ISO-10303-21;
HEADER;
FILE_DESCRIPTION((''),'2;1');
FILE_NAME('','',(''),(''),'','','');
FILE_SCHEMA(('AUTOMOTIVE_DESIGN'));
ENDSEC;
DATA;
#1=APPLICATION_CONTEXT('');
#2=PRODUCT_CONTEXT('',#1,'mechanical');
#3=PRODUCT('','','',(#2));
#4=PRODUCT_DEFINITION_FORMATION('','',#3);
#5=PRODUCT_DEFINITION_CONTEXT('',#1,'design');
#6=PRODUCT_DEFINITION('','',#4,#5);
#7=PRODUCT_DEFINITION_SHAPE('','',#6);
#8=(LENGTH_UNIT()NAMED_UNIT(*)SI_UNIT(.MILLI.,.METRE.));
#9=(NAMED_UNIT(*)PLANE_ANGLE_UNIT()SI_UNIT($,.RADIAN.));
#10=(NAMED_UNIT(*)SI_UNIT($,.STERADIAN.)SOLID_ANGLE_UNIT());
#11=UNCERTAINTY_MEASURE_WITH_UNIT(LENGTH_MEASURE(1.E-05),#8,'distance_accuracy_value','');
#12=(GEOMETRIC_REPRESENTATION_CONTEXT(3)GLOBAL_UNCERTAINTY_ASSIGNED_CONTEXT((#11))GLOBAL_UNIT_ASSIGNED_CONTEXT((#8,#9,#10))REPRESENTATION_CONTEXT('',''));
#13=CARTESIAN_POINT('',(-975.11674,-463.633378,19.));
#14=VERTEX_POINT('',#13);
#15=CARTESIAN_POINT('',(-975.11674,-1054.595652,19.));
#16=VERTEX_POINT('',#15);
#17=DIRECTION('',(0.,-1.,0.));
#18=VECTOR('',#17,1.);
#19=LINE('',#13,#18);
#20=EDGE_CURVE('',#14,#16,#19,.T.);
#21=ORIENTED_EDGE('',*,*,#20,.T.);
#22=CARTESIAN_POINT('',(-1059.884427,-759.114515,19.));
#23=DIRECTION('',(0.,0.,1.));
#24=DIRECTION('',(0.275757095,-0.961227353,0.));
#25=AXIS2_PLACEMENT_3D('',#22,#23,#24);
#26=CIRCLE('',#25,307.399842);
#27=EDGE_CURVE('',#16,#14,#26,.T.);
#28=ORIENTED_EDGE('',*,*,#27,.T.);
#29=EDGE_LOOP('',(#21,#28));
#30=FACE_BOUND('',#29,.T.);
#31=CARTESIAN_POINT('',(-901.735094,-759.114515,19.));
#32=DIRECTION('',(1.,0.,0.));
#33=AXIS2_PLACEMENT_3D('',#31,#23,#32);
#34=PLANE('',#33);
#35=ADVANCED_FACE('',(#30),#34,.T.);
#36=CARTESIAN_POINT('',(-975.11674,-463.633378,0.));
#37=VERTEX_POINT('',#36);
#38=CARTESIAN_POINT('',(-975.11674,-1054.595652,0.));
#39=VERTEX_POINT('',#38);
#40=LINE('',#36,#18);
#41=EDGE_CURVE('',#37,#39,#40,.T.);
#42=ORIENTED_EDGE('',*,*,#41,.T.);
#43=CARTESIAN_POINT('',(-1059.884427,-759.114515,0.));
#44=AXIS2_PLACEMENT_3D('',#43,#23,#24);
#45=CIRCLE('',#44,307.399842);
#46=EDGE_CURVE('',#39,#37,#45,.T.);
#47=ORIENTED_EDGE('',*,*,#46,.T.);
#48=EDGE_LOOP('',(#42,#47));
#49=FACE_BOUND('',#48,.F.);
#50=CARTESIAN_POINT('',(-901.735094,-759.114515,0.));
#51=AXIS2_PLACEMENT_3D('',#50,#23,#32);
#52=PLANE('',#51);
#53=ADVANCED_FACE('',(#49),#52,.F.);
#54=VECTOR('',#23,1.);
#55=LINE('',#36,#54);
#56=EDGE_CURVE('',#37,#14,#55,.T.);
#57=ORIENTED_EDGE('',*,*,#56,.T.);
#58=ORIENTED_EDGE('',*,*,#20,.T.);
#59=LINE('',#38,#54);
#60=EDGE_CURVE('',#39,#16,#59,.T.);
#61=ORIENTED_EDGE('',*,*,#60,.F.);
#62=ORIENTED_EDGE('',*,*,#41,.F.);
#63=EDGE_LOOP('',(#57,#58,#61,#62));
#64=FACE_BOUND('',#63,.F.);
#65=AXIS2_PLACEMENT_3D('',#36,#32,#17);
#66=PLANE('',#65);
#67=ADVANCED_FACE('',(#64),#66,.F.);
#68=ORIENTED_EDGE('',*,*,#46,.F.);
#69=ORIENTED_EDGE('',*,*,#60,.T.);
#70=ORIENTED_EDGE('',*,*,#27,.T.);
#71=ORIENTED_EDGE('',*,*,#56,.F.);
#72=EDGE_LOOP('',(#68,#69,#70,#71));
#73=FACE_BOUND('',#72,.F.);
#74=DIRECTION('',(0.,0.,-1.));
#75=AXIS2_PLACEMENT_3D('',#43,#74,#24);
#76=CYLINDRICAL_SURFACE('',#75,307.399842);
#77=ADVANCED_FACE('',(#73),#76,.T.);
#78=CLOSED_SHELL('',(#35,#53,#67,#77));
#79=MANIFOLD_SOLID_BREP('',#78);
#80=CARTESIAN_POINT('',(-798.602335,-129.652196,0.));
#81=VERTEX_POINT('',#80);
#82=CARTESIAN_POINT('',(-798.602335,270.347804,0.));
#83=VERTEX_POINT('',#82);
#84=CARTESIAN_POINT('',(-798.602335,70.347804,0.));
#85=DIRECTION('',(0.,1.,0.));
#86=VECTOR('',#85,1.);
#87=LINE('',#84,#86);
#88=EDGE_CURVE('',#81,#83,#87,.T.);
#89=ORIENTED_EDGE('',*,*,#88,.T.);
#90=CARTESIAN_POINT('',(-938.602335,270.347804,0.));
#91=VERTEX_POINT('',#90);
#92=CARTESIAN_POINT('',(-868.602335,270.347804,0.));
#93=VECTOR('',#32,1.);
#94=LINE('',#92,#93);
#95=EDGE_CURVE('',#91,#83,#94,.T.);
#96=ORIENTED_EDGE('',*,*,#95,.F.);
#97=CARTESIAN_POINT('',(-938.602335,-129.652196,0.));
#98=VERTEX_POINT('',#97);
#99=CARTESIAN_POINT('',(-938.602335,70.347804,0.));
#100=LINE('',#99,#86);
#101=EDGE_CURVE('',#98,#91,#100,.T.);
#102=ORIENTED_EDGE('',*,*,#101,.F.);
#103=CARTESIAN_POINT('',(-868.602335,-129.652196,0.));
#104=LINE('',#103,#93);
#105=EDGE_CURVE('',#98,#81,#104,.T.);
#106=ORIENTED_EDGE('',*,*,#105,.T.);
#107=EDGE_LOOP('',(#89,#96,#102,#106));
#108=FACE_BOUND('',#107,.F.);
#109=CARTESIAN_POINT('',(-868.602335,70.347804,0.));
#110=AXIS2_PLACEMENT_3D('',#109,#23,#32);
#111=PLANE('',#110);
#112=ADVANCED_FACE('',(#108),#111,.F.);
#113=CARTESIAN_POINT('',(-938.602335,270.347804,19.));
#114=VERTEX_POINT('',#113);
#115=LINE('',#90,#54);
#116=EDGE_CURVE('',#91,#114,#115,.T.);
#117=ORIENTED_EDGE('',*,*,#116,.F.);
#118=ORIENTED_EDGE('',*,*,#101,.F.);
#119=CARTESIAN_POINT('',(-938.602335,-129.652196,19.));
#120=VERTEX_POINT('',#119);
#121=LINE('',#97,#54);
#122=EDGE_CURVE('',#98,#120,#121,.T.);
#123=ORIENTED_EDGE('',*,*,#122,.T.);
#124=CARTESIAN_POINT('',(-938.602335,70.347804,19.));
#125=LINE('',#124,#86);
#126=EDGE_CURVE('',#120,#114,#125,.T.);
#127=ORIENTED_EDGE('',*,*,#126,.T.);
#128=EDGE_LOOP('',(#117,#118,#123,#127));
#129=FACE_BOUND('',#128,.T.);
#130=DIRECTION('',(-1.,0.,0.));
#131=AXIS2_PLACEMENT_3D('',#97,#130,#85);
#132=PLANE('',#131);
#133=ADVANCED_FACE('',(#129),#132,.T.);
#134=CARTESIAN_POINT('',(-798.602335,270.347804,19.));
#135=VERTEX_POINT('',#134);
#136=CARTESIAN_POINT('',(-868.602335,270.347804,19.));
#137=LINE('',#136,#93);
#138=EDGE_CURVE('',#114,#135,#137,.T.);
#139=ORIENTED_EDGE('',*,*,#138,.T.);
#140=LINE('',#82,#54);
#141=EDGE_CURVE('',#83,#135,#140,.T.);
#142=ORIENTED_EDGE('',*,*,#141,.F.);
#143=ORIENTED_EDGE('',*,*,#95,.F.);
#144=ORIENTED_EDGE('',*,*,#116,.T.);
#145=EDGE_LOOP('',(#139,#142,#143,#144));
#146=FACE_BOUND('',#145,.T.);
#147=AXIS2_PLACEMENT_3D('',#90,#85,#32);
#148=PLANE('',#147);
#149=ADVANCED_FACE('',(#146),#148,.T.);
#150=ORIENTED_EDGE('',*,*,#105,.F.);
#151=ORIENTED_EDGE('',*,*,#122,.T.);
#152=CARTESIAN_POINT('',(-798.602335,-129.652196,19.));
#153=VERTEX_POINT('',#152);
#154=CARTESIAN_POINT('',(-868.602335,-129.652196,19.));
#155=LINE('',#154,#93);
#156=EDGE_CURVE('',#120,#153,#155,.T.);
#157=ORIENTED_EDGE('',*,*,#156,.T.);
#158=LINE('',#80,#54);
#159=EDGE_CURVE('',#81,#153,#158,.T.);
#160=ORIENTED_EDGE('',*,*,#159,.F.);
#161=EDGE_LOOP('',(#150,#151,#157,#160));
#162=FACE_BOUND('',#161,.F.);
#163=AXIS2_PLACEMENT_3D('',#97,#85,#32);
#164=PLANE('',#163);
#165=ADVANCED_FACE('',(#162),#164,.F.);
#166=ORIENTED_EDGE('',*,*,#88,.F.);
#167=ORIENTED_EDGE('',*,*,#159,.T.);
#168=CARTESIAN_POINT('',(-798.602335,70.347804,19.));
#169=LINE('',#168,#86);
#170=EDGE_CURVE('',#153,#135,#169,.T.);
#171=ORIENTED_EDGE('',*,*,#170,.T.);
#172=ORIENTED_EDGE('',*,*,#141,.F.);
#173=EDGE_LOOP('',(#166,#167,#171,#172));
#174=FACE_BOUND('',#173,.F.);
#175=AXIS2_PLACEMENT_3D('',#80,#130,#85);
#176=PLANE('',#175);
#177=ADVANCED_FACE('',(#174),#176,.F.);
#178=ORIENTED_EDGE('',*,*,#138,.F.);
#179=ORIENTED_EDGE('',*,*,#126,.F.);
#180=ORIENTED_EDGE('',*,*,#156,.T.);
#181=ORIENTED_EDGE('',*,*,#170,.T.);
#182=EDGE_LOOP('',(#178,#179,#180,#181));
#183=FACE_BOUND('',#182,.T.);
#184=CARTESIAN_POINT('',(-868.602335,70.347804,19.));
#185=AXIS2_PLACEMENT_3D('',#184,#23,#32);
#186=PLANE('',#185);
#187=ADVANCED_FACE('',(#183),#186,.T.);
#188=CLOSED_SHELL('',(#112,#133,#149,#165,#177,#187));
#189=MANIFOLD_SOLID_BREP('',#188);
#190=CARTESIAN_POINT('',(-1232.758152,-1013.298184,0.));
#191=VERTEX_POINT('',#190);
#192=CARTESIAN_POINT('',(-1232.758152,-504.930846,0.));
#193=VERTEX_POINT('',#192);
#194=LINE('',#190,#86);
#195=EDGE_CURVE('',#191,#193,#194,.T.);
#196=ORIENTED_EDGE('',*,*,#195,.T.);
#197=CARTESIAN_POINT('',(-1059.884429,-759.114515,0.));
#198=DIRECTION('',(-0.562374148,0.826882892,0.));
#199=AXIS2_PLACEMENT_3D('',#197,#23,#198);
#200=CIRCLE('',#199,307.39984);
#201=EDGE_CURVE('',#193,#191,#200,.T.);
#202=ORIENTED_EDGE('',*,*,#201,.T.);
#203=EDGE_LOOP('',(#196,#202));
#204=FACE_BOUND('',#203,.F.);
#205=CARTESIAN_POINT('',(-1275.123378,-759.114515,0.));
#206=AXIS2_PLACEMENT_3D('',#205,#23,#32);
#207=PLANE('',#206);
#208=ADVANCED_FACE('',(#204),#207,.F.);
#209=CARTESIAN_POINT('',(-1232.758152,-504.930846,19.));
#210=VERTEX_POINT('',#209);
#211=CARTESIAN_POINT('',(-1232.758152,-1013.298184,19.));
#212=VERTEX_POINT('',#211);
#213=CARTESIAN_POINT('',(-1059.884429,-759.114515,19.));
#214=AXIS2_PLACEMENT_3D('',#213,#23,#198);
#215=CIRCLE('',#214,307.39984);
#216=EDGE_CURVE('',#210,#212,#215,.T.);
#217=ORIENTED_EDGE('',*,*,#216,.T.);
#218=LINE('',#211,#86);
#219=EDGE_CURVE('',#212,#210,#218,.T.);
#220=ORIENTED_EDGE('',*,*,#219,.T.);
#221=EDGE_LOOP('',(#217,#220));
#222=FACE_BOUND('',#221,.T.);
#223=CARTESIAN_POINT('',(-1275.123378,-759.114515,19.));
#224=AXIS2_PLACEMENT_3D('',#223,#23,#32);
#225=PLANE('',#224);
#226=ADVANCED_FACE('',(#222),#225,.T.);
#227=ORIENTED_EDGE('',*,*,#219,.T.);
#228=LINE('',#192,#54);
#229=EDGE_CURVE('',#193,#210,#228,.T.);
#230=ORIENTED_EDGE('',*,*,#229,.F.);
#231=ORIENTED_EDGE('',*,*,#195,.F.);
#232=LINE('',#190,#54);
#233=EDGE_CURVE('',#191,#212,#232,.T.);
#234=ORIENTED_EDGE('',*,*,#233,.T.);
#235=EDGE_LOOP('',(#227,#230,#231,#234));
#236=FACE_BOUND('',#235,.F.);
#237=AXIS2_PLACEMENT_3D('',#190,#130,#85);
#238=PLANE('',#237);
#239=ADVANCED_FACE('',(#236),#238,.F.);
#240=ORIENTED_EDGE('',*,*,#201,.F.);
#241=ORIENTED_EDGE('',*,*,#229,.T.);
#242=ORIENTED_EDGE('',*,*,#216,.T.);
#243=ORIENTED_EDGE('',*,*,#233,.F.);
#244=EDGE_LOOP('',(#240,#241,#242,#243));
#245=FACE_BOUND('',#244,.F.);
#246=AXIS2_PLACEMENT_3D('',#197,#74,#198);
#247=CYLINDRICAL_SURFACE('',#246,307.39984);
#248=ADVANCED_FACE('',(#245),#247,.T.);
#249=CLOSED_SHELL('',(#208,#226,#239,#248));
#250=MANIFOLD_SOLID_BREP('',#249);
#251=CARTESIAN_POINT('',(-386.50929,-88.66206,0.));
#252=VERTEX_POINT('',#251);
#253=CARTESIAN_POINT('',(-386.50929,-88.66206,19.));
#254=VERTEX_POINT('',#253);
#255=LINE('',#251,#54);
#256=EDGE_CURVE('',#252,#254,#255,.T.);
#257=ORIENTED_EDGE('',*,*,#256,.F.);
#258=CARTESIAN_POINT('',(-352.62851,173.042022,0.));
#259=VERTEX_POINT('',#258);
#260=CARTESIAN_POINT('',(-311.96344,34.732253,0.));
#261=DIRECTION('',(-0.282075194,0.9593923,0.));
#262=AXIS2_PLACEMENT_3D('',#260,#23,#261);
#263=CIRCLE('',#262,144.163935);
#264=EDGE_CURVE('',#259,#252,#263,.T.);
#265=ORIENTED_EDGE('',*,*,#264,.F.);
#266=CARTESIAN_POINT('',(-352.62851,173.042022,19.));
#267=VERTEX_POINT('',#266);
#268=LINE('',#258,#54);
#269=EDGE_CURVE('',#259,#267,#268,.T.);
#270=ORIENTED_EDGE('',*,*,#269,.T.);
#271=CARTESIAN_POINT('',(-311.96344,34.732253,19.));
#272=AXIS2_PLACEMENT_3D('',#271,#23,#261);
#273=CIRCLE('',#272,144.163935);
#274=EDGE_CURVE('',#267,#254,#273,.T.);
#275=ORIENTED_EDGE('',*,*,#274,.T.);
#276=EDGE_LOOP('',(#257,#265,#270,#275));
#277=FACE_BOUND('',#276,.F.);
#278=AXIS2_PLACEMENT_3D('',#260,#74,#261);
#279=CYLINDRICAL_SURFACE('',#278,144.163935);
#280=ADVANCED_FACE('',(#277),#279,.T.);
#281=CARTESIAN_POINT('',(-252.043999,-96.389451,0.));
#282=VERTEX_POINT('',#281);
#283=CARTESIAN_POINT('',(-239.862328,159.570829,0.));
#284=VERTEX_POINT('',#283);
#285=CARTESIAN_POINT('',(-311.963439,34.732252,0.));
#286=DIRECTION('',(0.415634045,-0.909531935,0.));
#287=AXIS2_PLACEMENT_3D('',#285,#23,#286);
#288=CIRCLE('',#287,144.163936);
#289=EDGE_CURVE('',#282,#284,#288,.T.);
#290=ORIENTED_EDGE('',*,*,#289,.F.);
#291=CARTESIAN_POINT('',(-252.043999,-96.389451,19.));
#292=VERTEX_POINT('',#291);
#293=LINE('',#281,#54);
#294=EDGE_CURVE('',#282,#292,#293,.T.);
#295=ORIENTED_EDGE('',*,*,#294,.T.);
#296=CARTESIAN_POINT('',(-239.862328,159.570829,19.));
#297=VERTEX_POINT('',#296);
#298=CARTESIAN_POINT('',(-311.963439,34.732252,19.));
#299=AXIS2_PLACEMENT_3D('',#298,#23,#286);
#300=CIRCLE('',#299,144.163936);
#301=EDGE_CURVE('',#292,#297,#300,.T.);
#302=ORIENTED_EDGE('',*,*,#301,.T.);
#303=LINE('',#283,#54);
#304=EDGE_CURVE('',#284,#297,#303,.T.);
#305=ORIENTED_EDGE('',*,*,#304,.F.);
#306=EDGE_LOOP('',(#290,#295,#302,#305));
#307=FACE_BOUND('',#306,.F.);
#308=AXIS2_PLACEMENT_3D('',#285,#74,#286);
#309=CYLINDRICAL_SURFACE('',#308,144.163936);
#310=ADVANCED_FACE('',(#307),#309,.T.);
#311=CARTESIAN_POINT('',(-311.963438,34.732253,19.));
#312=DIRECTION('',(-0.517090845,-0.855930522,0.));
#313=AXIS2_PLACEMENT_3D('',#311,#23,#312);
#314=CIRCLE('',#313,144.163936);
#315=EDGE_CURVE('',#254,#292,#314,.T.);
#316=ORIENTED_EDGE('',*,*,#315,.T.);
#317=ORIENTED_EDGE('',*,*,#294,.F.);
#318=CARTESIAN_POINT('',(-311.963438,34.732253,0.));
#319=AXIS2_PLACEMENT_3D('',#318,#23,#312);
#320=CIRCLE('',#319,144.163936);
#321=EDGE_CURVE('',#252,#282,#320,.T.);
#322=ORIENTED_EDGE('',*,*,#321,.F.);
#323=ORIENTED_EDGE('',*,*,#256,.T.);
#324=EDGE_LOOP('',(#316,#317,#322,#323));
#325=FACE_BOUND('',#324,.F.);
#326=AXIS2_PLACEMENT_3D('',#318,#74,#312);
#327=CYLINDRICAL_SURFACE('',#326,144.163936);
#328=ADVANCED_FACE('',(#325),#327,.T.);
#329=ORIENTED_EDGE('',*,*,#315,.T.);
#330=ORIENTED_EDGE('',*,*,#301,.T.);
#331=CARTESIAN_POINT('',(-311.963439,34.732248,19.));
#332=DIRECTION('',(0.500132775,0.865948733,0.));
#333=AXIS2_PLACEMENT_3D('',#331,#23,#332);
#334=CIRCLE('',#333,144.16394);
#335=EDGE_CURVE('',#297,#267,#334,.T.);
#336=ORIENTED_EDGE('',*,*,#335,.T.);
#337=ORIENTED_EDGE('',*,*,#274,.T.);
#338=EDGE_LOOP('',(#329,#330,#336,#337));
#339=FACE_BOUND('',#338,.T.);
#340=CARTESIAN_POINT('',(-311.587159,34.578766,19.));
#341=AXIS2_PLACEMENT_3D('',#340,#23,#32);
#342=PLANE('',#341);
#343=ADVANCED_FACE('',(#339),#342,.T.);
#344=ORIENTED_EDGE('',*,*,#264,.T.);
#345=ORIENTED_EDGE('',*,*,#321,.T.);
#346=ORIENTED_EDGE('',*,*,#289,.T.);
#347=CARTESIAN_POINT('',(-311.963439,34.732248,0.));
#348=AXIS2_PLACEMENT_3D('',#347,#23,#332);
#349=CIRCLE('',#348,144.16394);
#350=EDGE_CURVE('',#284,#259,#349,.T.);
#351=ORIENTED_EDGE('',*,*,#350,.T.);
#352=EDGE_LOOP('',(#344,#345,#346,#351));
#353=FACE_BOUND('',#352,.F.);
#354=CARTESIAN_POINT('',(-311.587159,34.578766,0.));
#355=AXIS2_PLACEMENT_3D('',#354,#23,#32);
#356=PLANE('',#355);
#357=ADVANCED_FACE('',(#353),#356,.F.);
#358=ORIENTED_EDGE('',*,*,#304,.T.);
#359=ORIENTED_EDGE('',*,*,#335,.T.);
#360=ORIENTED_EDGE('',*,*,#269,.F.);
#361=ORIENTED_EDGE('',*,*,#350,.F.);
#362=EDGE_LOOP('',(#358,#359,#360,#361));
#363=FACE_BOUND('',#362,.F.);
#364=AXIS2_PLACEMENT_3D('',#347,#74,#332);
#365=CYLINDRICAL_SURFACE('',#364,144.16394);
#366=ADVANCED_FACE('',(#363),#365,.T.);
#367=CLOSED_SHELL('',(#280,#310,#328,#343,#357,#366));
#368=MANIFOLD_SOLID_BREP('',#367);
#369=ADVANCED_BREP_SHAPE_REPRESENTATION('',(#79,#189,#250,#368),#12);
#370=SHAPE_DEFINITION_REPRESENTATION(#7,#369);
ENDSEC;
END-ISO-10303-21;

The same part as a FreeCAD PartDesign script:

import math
import FreeCAD as App
import Part
import Sketcher
Q = App.Units.Quantity

doc = App.newDocument("Part")
body = doc.addObject("PartDesign::Body", "Body")

sketch1 = doc.addObject("Sketcher::SketchObject", "Sketch")
body.addObject(sketch1)
sketch1.AttachmentSupport = (doc.XY_Plane, [""])
sketch1.MapMode = "FlatFace"
sketch1.addGeometry(Part.ArcOfCircle(Part.Circle(App.Vector(-311.963439, 34.732252, 0), App.Vector(0, 0, 1), 144.163936), math.radians(-65.440748), math.radians(59.991215)), False)
sketch1.addGeometry(Part.ArcOfCircle(Part.Circle(App.Vector(-311.963439, 34.732248, 0), App.Vector(0, 0, 1), 144.16394), math.radians(59.991215), math.radians(106.384098)), False)
sketch1.addGeometry(Part.ArcOfCircle(Part.Circle(App.Vector(-311.96344, 34.732253, 0), App.Vector(0, 0, 1), 144.163935), math.radians(106.384098), math.radians(238.862688)), False)
sketch1.addGeometry(Part.ArcOfCircle(Part.Circle(App.Vector(-311.963438, 34.732253, 0), App.Vector(0, 0, 1), 144.163936), math.radians(-121.137313), math.radians(-65.440749)), False)
sketch1.addConstraint(Sketcher.Constraint("Tangent", 0, 2, 1, 1))
sketch1.addConstraint(Sketcher.Constraint("Tangent", 1, 2, 2, 1))
sketch1.addConstraint(Sketcher.Constraint("Tangent", 2, 2, 3, 1))
sketch1.addConstraint(Sketcher.Constraint("Tangent", 3, 2, 0, 1))
sketch1.addConstraint(Sketcher.Constraint("Equal", 0, 2))
sketch1.addConstraint(Sketcher.Constraint("Radius", 1, Q("144.16394 mm")))
sketch1.addConstraint(Sketcher.Constraint("DistanceX", 3, 2, -1, 1, Q("252.043999 mm")))
sketch1.addConstraint(Sketcher.Constraint("DistanceY", 3, 2, 1, 3, Q("131.121699 mm")))
sketch1.addConstraint(Sketcher.Constraint("DistanceX", 0, 2, -1, 1, Q("239.862328 mm")))
sketch1.addConstraint(Sketcher.Constraint("DistanceY", -1, 1, 0, 2, Q("159.570829 mm")))
sketch1.addConstraint(Sketcher.Constraint("DistanceX", 1, 2, -1, 1, Q("352.62851 mm")))
sketch1.addConstraint(Sketcher.Constraint("DistanceX", 2, 2, -1, 1, Q("386.50929 mm")))
pad1 = doc.addObject("PartDesign::Pad", "Pad")
body.addObject(pad1)
pad1.Profile = sketch1
pad1.Length = 19
body2 = doc.addObject("PartDesign::Body", "Body001")
body2.AllowCompound = True

sketch2 = doc.addObject("Sketcher::SketchObject", "Sketch001")
body2.addObject(sketch2)
sketch2.AttachmentSupport = (doc.getObject("XY_Plane001"), [""])
sketch2.MapMode = "FlatFace"
sketch2.addGeometry(Part.LineSegment(App.Vector(-1233, -1013, 0), App.Vector(-1233, -505, 0)), False)
sketch2.addGeometry(Part.ArcOfCircle(Part.Circle(App.Vector(-1060, -759, 0), App.Vector(0, 0, 1), 307), math.radians(124), math.radians(236)), False)
sketch2.addGeometry(Part.ArcOfCircle(Part.Circle(App.Vector(-1060, -759, 0), App.Vector(0, 0, 1), 307), math.radians(-74), math.radians(74)), False)
sketch2.addGeometry(Part.LineSegment(App.Vector(-975, -464, 0), App.Vector(-975, -1055, 0)), False)
sketch2.addConstraint(Sketcher.Constraint("Coincident", 0, 1, 1, 2))
sketch2.addConstraint(Sketcher.Constraint("Coincident", 1, 1, 0, 2))
sketch2.addConstraint(Sketcher.Constraint("Coincident", 2, 1, 3, 2))
sketch2.addConstraint(Sketcher.Constraint("Coincident", 3, 1, 2, 2))
sketch2.addConstraint(Sketcher.Constraint("Vertical", 0))
sketch2.addConstraint(Sketcher.Constraint("Vertical", 3))
sketch2.addConstraint(Sketcher.Constraint("Coincident", 2, 3, 1, 3))
sketch2.addConstraint(Sketcher.Constraint("Radius", 1, Q("307.39984 mm")))
sketch2.addConstraint(Sketcher.Constraint("Radius", 2, Q("307.399842 mm")))
sketch2.addConstraint(Sketcher.Constraint("DistanceY", 0, 1, 0, 2, Q("508.367338 mm")))
sketch2.addConstraint(Sketcher.Constraint("DistanceY", 3, 2, 3, 1, Q("590.962274 mm")))
sketch2.addConstraint(Sketcher.Constraint("DistanceX", 1, 3, -1, 1, Q("1059.884429 mm")))
sketch2.addConstraint(Sketcher.Constraint("DistanceY", 2, 1, -1, 1, Q("1054.595652 mm")))
pad2 = doc.addObject("PartDesign::Pad", "Pad001")
body2.addObject(pad2)
pad2.Profile = sketch2
pad2.Length = 19
body3 = doc.addObject("PartDesign::Body", "Body002")

sketch3 = doc.addObject("Sketcher::SketchObject", "Sketch002")
body3.addObject(sketch3)
sketch3.AttachmentSupport = (doc.getObject("XY_Plane002"), [""])
sketch3.MapMode = "FlatFace"
sketch3.addGeometry(Part.LineSegment(App.Vector(-939, 270, 0), App.Vector(-939, -130, 0)), False)
sketch3.addGeometry(Part.LineSegment(App.Vector(-939, -130, 0), App.Vector(-799, -130, 0)), False)
sketch3.addGeometry(Part.LineSegment(App.Vector(-799, -130, 0), App.Vector(-799, 270, 0)), False)
sketch3.addGeometry(Part.LineSegment(App.Vector(-799, 270, 0), App.Vector(-939, 270, 0)), False)
sketch3.addConstraint(Sketcher.Constraint("Coincident", 0, 2, 1, 1))
sketch3.addConstraint(Sketcher.Constraint("Coincident", 1, 2, 2, 1))
sketch3.addConstraint(Sketcher.Constraint("Coincident", 2, 2, 3, 1))
sketch3.addConstraint(Sketcher.Constraint("Coincident", 3, 2, 0, 1))
sketch3.addConstraint(Sketcher.Constraint("Vertical", 0))
sketch3.addConstraint(Sketcher.Constraint("Horizontal", 1))
sketch3.addConstraint(Sketcher.Constraint("Vertical", 2))
sketch3.addConstraint(Sketcher.Constraint("Horizontal", 3))
sketch3.addConstraint(Sketcher.Constraint("DistanceX", 1, 1, 1, 2, Q("140 mm")))
sketch3.addConstraint(Sketcher.Constraint("DistanceY", 0, 2, 0, 1, Q("400 mm")))
sketch3.addConstraint(Sketcher.Constraint("DistanceX", 0, 2, -1, 1, Q("938.602335 mm")))
sketch3.addConstraint(Sketcher.Constraint("DistanceY", 0, 2, -1, 1, Q("129.652196 mm")))
pad3 = doc.addObject("PartDesign::Pad", "Pad002")
body3.addObject(pad3)
pad3.Profile = sketch3
pad3.Length = 19

doc.recompute()
